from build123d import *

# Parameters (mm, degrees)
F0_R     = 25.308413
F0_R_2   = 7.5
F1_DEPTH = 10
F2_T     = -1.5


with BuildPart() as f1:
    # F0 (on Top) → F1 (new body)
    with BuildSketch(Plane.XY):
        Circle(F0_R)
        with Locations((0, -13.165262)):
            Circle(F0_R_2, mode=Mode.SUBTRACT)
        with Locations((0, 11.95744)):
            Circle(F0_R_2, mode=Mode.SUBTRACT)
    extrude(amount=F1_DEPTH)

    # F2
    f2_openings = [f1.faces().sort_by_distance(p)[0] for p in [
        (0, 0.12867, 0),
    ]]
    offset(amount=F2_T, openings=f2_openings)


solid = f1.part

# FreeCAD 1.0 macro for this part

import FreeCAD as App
import Part
import Sketcher

V = App.Vector
Q = App.Units.Quantity


def faces_at(feature, points):
    """Names of the faces that lie closest to the given points."""
    faces = feature.Shape.Faces
    near = lambda p: min(range(len(faces)), key=lambda i: faces[i].distToShape(Part.Vertex(*p))[0])
    return sorted({f"Face{near(p) + 1}" for p in points})

doc = App.newDocument("Part")
body = doc.addObject("PartDesign::Body", "Body")

# Sketch on XY plane
sketch1 = body.newObject("Sketcher::SketchObject", "Sketch")
sketch1.AttachmentSupport = (doc.getObject("XY_Plane"), [""])
sketch1.MapMode = "FlatFace"
sketch1.addGeometry([
    Part.Circle(V(0, 0, 0), V(0, 0, 1), 25.308413),
    Part.Circle(V(0, -13.165262, 0), V(0, 0, 1), 7.5),
    Part.Circle(V(0, 11.95744, 0), V(0, 0, 1), 7.5),
], False)
sketch1.addConstraint([
    Sketcher.Constraint("Coincident", 0, 3, -1, 1),
    Sketcher.Constraint("Equal", 1, 2),
    Sketcher.Constraint("PointOnObject", 1, 3, -2),
    Sketcher.Constraint("PointOnObject", 2, 3, -2),
    Sketcher.Constraint("Diameter", 1, Q("15 mm")),
    Sketcher.Constraint("Diameter", 0, Q("50.616826 mm")),
    Sketcher.Constraint("DistanceY", -1, 1, 2, 3, Q("11.95744 mm")),
    Sketcher.Constraint("DistanceY", 1, 3, -1, 1, Q("13.165262 mm")),
])
pad1 = body.newObject("PartDesign::Pad", "Pad")
pad1.Profile = sketch1
pad1.Length = 10
doc.recompute()

thickness = body.newObject("PartDesign::Thickness", "Thickness")
thickness.Base = (pad1, faces_at(pad1, [(0, 0, 0)]))
thickness.Value = 1.5
thickness.Reversed = True
thickness.Join = "Arc"

doc.recompute()
